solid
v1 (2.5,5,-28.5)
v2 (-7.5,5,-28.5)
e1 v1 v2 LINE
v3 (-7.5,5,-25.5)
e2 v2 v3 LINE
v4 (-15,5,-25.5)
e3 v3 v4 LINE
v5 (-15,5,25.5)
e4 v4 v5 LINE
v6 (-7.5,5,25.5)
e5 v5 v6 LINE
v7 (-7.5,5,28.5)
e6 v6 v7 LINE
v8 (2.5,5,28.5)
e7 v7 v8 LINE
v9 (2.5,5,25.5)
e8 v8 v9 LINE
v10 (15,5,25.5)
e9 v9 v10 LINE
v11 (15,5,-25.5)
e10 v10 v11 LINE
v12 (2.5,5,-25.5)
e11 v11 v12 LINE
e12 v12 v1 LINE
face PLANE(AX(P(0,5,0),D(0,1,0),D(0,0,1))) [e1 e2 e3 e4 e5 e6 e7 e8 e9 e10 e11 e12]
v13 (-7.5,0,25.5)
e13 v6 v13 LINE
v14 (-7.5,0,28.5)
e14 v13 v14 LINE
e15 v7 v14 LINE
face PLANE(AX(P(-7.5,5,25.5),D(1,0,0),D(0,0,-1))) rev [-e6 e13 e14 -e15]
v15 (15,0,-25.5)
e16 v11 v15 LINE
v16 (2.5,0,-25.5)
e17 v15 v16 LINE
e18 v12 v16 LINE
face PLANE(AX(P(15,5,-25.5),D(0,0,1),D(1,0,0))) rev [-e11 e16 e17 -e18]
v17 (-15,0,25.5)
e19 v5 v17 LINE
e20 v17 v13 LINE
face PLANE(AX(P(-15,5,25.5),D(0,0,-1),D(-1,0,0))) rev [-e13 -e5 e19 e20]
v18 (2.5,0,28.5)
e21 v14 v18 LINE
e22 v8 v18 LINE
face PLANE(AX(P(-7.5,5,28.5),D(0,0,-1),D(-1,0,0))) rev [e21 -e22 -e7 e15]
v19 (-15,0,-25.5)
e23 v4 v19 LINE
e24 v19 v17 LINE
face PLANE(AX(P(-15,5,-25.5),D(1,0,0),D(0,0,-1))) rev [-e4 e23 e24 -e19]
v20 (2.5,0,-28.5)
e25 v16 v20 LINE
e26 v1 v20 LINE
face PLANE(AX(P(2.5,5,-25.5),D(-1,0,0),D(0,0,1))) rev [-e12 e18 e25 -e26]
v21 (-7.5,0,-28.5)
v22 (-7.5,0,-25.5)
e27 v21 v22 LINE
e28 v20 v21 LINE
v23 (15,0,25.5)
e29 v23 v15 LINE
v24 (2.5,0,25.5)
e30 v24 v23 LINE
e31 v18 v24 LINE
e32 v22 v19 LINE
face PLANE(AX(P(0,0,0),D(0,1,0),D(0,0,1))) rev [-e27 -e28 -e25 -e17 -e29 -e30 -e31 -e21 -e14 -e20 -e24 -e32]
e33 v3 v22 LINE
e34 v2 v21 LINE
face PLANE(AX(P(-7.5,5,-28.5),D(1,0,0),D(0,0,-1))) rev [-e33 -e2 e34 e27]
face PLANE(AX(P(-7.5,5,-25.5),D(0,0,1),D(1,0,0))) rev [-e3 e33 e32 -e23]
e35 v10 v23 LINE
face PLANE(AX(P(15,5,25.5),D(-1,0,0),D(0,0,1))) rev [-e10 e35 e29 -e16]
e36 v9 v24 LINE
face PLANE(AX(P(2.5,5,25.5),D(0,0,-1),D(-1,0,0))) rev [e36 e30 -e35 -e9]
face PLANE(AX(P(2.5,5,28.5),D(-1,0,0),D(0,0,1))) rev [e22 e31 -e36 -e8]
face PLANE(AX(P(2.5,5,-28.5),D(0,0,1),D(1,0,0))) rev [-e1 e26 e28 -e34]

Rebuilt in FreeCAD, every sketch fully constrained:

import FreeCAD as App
import Part
import Sketcher
Q = App.Units.Quantity


def add_polygon(sketch, points):
    """Adds a closed chain of lines whose ends are joined by coincident constraints."""
    first, n = sketch.GeometryCount, len(points)
    for a, b in zip(points, points[1:] + points[:1]):
        sketch.addGeometry(Part.LineSegment(App.Vector(*a, 0), App.Vector(*b, 0)), False)
    for i in range(n):
        sketch.addConstraint(Sketcher.Constraint("Coincident", first + i, 2, first + (i + 1) % n, 1))

doc = App.newDocument("Part")
body = doc.addObject("PartDesign::Body", "Body")

# Sketch on XZ plane
sketch1 = doc.addObject("Sketcher::SketchObject", "Sketch")
body.addObject(sketch1)
sketch1.AttachmentSupport = (doc.XZ_Plane, [""])
sketch1.MapMode = "FlatFace"
add_polygon(sketch1, [(15, -25.5), (2.5, -25.5), (2.5, -28.5), (-7.5, -28.5), (-7.5, -25.5), (-15, -25.5), (-15, 25.5), (-7.5, 25.5), (-7.5, 28.5), (2.5, 28.5), (2.5, 25.5), (15, 25.5)])  # lines 0-11
sketch1.addConstraint(Sketcher.Constraint("Horizontal", 0))
sketch1.addConstraint(Sketcher.Constraint("Vertical", 1))
sketch1.addConstraint(Sketcher.Constraint("Horizontal", 2))
sketch1.addConstraint(Sketcher.Constraint("Vertical", 3))
sketch1.addConstraint(Sketcher.Constraint("Horizontal", 4))
sketch1.addConstraint(Sketcher.Constraint("Vertical", 5))
sketch1.addConstraint(Sketcher.Constraint("Horizontal", 6))
sketch1.addConstraint(Sketcher.Constraint("Vertical", 7))
sketch1.addConstraint(Sketcher.Constraint("Horizontal", 8))
sketch1.addConstraint(Sketcher.Constraint("Vertical", 9))
sketch1.addConstraint(Sketcher.Constraint("Horizontal", 10))
sketch1.addConstraint(Sketcher.Constraint("Vertical", 11))
sketch1.addConstraint(Sketcher.Constraint("Symmetric", 4, 2, 10, 2, -1, 1))
sketch1.addConstraint(Sketcher.Constraint("Symmetric", 3, 2, 6, 2, -1))
sketch1.addConstraint(Sketcher.Constraint("Symmetric", 1, 2, 8, 2, -1))
sketch1.addConstraint(Sketcher.Constraint("Horizontal", 0, 2, 3, 2))
sketch1.addConstraint(Sketcher.Constraint("DistanceX", 2, 2, 2, 1, Q("10 mm")))
sketch1.addConstraint(Sketcher.Constraint("DistanceY", 1, 2, 1, 1, Q("3 mm")))
sketch1.addConstraint(Sketcher.Constraint("DistanceY", 5, 1, 5, 2, Q("51 mm")))
sketch1.addConstraint(Sketcher.Constraint("DistanceX", 0, 2, 0, 1, Q("12.5 mm")))
sketch1.addConstraint(Sketcher.Constraint("DistanceX", 4, 2, 4, 1, Q("7.5 mm")))
pad1 = doc.addObject("PartDesign::Pad", "Pad")
body.addObject(pad1)
pad1.Profile = sketch1
pad1.Length = 5
pad1.Reversed = True

doc.recompute()
